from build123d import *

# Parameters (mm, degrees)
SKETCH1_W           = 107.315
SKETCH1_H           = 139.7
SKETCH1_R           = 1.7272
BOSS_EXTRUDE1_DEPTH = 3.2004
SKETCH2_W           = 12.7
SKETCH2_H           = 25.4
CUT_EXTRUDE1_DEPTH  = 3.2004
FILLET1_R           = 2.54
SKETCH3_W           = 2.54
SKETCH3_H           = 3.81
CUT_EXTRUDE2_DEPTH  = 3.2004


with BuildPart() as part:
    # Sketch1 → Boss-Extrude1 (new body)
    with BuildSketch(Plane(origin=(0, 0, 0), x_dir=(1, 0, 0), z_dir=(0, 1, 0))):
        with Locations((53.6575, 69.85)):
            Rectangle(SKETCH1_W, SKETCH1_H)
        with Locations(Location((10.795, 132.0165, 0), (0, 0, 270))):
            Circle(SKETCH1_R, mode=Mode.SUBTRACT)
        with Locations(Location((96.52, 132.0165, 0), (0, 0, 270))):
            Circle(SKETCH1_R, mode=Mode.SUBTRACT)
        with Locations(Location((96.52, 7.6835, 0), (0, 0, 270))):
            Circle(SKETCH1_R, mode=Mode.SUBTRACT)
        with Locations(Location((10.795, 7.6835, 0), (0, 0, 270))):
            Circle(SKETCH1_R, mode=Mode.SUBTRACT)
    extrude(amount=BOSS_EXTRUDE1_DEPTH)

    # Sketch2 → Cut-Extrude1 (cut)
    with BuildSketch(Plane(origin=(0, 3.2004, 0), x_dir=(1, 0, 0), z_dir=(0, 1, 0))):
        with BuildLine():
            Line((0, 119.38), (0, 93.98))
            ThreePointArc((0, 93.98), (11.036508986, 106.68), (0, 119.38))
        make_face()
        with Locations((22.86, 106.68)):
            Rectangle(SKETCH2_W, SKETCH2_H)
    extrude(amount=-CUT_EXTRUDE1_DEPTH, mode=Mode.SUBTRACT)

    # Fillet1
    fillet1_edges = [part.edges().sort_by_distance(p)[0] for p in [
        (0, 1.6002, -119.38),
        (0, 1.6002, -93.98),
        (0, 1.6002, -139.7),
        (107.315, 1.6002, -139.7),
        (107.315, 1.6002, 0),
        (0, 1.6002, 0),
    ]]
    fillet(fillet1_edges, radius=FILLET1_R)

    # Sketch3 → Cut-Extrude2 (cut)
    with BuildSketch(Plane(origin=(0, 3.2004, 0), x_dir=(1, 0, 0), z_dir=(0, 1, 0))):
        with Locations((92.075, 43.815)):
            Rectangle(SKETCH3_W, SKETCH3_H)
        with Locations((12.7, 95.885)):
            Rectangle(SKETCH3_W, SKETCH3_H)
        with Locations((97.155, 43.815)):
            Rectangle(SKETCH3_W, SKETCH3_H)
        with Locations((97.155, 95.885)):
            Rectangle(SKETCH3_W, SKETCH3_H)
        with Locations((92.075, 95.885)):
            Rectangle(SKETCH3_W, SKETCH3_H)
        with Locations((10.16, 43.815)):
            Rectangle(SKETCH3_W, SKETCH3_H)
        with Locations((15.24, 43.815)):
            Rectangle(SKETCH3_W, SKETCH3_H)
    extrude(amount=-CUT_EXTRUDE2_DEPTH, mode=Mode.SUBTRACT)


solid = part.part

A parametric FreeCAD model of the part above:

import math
import FreeCAD as App
import Part
import Sketcher

V = App.Vector
Q = App.Units.Quantity


def edges_at(feature, points):
    """Names of the edges that pass closest to the given points."""
    edges = feature.Shape.Edges
    near = lambda p: min(range(len(edges)), key=lambda i: edges[i].distToShape(Part.Vertex(*p))[0])
    return sorted({f"Edge{near(p) + 1}" for p in points})


def add_polygon(sketch, points):
    """Adds a closed chain of lines whose ends are joined by coincident constraints."""
    first, n = sketch.GeometryCount, len(points)
    for a, b in zip(points, points[1:] + points[:1]):
        sketch.addGeometry(Part.LineSegment(App.Vector(*a, 0), App.Vector(*b, 0)), False)
    for i in range(n):
        sketch.addConstraint(Sketcher.Constraint("Coincident", first + i, 2, first + (i + 1) % n, 1))

doc = App.newDocument("Part")
body = doc.addObject("PartDesign::Body", "Body")

# Sketch on XZ plane
sketch1 = body.newObject("Sketcher::SketchObject", "Sketch")
sketch1.AttachmentSupport = (doc.getObject("XZ_Plane"), [""])
sketch1.MapMode = "FlatFace"
add_polygon(sketch1, [(0, -139.7), (0, 0), (107.3, 0), (107.3, -139.7)])  # lines 0-3
sketch1.addGeometry(Part.Circle(V(10.8, -7.7, 0), V(0, 0, 1), 1.7), False)  # 4
sketch1.addGeometry(Part.Circle(V(96.5, -7.7, 0), V(0, 0, 1), 1.7), False)  # 5
sketch1.addGeometry(Part.Circle(V(10.8, -132, 0), V(0, 0, 1), 1.7), False)  # 6
sketch1.addGeometry(Part.Circle(V(96.5, -132, 0), V(0, 0, 1), 1.7), False)  # 7
sketch1.addConstraint([
    Sketcher.Constraint("Vertical", 0),
    Sketcher.Constraint("Horizontal", 1),
    Sketcher.Constraint("Vertical", 2),
    Sketcher.Constraint("Horizontal", 3),
    Sketcher.Constraint("Coincident", 0, 2, -1, 1),
    Sketcher.Constraint("Equal", 4, 5),
    Sketcher.Constraint("Equal", 5, 6),
    Sketcher.Constraint("Equal", 6, 7),
    Sketcher.Constraint("Horizontal", 4, 3, 5, 3),
    Sketcher.Constraint("Horizontal", 6, 3, 7, 3),
    Sketcher.Constraint("Vertical", 4, 3, 6, 3),
    Sketcher.Constraint("Vertical", 5, 3, 7, 3),
    Sketcher.Constraint("Diameter", 4, Q("0.136 in")),
    Sketcher.Constraint("DistanceY", 0, 1, 0, 2, Q("5.5 in")),
    Sketcher.Constraint("DistanceX", -1, 1, 5, 3, Q("3.8 in")),
    Sketcher.Constraint("DistanceX", 4, 3, 1, 2, Q("3.8 in")),
    Sketcher.Constraint("DistanceX", 1, 1, 1, 2, Q("4.225 in")),
    Sketcher.Constraint("DistanceY", 6, 3, 4, 3, Q("4.895 in")),
    Sketcher.Constraint("DistanceY", 4, 3, -1, 1, Q("0.3025 in")),
])
pad1 = body.newObject("PartDesign::Pad", "Pad")
pad1.Profile = sketch1
pad1.Length = Q("0.126 in")
pad1.Reversed = True

# Sketch on XZ plane
sketch2 = body.newObject("Sketcher::SketchObject", "Sketch001")
sketch2.AttachmentSupport = (doc.getObject("XZ_Plane"), [""])
sketch2.MapMode = "FlatFace"
sketch2.AttachmentOffset = App.Placement(V(0, 0, -0.126 * 25.4), App.Rotation())
sketch2.addGeometry(Part.LineSegment(V(0, -119, 0), V(0, -94, 0)), False)  # 0
sketch2.addGeometry(Part.ArcOfCircle(Part.Circle(V(-2, -107, 0), V(0, 0, 1), 13), math.radians(-82), math.radians(82)), False)  # 1
add_polygon(sketch2, [(17, -119), (17, -94), (29, -94), (29, -119)])  # lines 2-5
sketch2.addConstraint([
    Sketcher.Constraint("Coincident", 0, 1, 1, 1),
    Sketcher.Constraint("Coincident", 1, 2, 0, 2),
    Sketcher.Constraint("Vertical", 0),
    Sketcher.Constraint("Vertical", 2),
    Sketcher.Constraint("Horizontal", 3),
    Sketcher.Constraint("Vertical", 4),
    Sketcher.Constraint("Horizontal", 5),
    Sketcher.Constraint("PointOnObject", 0, 1, -2),
    Sketcher.Constraint("Horizontal", 1, 2, 2, 2),
    Sketcher.Constraint("Horizontal", 0, 1, 4, 2),
    Sketcher.Constraint("DistanceY", 0, 1, 0, 2, Q("1 in")),
    Sketcher.Constraint("DistanceX", 3, 1, 3, 2, Q("0.5 in")),
    Sketcher.Constraint("DistanceY", 1, 3, -1, 1, Q("4.2 in")),
    Sketcher.Constraint("DistanceX", -1, 1, 2, 2, Q("0.65 in")),
    Sketcher.Constraint("Radius", 1, 12.825366),
])
pocket1 = body.newObject("PartDesign::Pocket", "Pocket")
pocket1.Profile = sketch2
pocket1.Length = Q("0.126 in")
pocket1.Reversed = True
doc.recompute()

fillet = body.newObject("PartDesign::Fillet", "Fillet")
fillet.Base = (pocket1, edges_at(pocket1, [
    (0, 1.6, -119.38),
    (0, 1.6, -93.98),
    (0, 1.6, -139.7),
    (107.315, 1.6, -139.7),
    (107.315, 1.6, 0),
    (0, 1.6, 0),
]))
fillet.Radius = Q("0.1 in")

# Sketch on XZ plane
sketch3 = body.newObject("Sketcher::SketchObject", "Sketch002")
sketch3.AttachmentSupport = (doc.getObject("XZ_Plane"), [""])
sketch3.MapMode = "FlatFace"
sketch3.AttachmentOffset = App.Placement(V(0, 0, -0.126 * 25.4), App.Rotation())
add_polygon(sketch3, [(90.8, -45.7), (90.8, -41.9), (93.3, -41.9), (93.3, -45.7)])  # lines 0-3
add_polygon(sketch3, [(11.4, -97.8), (11.4, -94), (14, -94), (14, -97.8)])  # lines 4-7
add_polygon(sketch3, [(95.9, -45.7), (95.9, -41.9), (98.4, -41.9), (98.4, -45.7)])  # lines 8-11
add_polygon(sketch3, [(95.9, -97.8), (95.9, -94), (98.4, -94), (98.4, -97.8)])  # lines 12-15
add_polygon(sketch3, [(90.8, -97.8), (90.8, -94), (93.3, -94), (93.3, -97.8)])  # lines 16-19
add_polygon(sketch3, [(8.9, -45.7), (8.9, -41.9), (11.4, -41.9), (11.4, -45.7)])  # lines 20-23
add_polygon(sketch3, [(14, -45.7), (14, -41.9), (16.5, -41.9), (16.5, -45.7)])  # lines 24-27
sketch3.addConstraint([
    Sketcher.Constraint("Vertical", 0),
    Sketcher.Constraint("Horizontal", 1),
    Sketcher.Constraint("Vertical", 2),
    Sketcher.Constraint("Horizontal", 3),
    Sketcher.Constraint("Vertical", 4),
    Sketcher.Constraint("Horizontal", 5),
    Sketcher.Constraint("Vertical", 6),
    Sketcher.Constraint("Horizontal", 7),
    Sketcher.Constraint("Vertical", 8),
    Sketcher.Constraint("Horizontal", 9),
    Sketcher.Constraint("Vertical", 10),
    Sketcher.Constraint("Horizontal", 11),
    Sketcher.Constraint("Vertical", 12),
    Sketcher.Constraint("Horizontal", 13),
    Sketcher.Constraint("Vertical", 14),
    Sketcher.Constraint("Horizontal", 15),
    Sketcher.Constraint("Vertical", 16),
    Sketcher.Constraint("Horizontal", 17),
    Sketcher.Constraint("Vertical", 18),
    Sketcher.Constraint("Horizontal", 19),
    Sketcher.Constraint("Vertical", 20),
    Sketcher.Constraint("Horizontal", 21),
    Sketcher.Constraint("Vertical", 22),
    Sketcher.Constraint("Horizontal", 23),
    Sketcher.Constraint("Vertical", 24),
    Sketcher.Constraint("Horizontal", 25),
    Sketcher.Constraint("Vertical", 26),
    Sketcher.Constraint("Horizontal", 27),
    Sketcher.Constraint("Horizontal", 1, 2, 8, 2),
    Sketcher.Constraint("Horizontal", 3, 2, 10, 2),
    Sketcher.Constraint("Horizontal", 5, 2, 12, 2),
    Sketcher.Constraint("Horizontal", 7, 2, 14, 2),
    Sketcher.Constraint("Horizontal", 13, 2, 16, 2),
    Sketcher.Constraint("Horizontal", 15, 2, 18, 2),
    Sketcher.Constraint("Horizontal", 9, 2, 20, 2),
    Sketcher.Constraint("Horizontal", 11, 2, 22, 2),
    Sketcher.Constraint("Horizontal", 21, 2, 24, 2),
    Sketcher.Constraint("Horizontal", 23, 2, 26, 2),
    Sketcher.Constraint("Vertical", 11, 2, 12, 2),
    Sketcher.Constraint("Vertical", 10, 2, 13, 2),
    Sketcher.Constraint("Vertical", 3, 2, 16, 2),
    Sketcher.Constraint("Vertical", 2, 2, 17, 2),
    Sketcher.Constraint("Vertical", 7, 2, 21, 2),
    Sketcher.Constraint("Vertical", 6, 2, 24, 2),
    Sketcher.Constraint("Equal", 3, 5),
    Sketcher.Constraint("Equal", 7, 9),
    Sketcher.Constraint("Equal", 19, 21),
    Sketcher.Constraint("Equal", 23, 25),
    Sketcher.Constraint("Equal", 2, 4),
    Sketcher.Constraint("DistanceX", 1, 1, 1, 2, Q("0.1 in")),
    Sketcher.Constraint("DistanceY", 0, 1, 0, 2, Q("0.15 in")),
    Sketcher.Constraint("DistanceY", 2, 2, -1, 1, Q("1.8 in")),
    Sketcher.Constraint("DistanceY", 4, 2, -1, 1, Q("3.7 in")),
    Sketcher.Constraint("DistanceX", 1, 2, 8, 2, Q("0.1 in")),
    Sketcher.Constraint("DistanceX", -1, 1, 4, 2, Q("0.45 in")),
    Sketcher.Constraint("DistanceX", -1, 1, 0, 2, Q("3.575 in")),
])
pocket2 = body.newObject("PartDesign::Pocket", "Pocket001")
pocket2.Profile = sketch3
pocket2.Length = Q("0.126 in")
pocket2.Reversed = True

doc.recompute()
